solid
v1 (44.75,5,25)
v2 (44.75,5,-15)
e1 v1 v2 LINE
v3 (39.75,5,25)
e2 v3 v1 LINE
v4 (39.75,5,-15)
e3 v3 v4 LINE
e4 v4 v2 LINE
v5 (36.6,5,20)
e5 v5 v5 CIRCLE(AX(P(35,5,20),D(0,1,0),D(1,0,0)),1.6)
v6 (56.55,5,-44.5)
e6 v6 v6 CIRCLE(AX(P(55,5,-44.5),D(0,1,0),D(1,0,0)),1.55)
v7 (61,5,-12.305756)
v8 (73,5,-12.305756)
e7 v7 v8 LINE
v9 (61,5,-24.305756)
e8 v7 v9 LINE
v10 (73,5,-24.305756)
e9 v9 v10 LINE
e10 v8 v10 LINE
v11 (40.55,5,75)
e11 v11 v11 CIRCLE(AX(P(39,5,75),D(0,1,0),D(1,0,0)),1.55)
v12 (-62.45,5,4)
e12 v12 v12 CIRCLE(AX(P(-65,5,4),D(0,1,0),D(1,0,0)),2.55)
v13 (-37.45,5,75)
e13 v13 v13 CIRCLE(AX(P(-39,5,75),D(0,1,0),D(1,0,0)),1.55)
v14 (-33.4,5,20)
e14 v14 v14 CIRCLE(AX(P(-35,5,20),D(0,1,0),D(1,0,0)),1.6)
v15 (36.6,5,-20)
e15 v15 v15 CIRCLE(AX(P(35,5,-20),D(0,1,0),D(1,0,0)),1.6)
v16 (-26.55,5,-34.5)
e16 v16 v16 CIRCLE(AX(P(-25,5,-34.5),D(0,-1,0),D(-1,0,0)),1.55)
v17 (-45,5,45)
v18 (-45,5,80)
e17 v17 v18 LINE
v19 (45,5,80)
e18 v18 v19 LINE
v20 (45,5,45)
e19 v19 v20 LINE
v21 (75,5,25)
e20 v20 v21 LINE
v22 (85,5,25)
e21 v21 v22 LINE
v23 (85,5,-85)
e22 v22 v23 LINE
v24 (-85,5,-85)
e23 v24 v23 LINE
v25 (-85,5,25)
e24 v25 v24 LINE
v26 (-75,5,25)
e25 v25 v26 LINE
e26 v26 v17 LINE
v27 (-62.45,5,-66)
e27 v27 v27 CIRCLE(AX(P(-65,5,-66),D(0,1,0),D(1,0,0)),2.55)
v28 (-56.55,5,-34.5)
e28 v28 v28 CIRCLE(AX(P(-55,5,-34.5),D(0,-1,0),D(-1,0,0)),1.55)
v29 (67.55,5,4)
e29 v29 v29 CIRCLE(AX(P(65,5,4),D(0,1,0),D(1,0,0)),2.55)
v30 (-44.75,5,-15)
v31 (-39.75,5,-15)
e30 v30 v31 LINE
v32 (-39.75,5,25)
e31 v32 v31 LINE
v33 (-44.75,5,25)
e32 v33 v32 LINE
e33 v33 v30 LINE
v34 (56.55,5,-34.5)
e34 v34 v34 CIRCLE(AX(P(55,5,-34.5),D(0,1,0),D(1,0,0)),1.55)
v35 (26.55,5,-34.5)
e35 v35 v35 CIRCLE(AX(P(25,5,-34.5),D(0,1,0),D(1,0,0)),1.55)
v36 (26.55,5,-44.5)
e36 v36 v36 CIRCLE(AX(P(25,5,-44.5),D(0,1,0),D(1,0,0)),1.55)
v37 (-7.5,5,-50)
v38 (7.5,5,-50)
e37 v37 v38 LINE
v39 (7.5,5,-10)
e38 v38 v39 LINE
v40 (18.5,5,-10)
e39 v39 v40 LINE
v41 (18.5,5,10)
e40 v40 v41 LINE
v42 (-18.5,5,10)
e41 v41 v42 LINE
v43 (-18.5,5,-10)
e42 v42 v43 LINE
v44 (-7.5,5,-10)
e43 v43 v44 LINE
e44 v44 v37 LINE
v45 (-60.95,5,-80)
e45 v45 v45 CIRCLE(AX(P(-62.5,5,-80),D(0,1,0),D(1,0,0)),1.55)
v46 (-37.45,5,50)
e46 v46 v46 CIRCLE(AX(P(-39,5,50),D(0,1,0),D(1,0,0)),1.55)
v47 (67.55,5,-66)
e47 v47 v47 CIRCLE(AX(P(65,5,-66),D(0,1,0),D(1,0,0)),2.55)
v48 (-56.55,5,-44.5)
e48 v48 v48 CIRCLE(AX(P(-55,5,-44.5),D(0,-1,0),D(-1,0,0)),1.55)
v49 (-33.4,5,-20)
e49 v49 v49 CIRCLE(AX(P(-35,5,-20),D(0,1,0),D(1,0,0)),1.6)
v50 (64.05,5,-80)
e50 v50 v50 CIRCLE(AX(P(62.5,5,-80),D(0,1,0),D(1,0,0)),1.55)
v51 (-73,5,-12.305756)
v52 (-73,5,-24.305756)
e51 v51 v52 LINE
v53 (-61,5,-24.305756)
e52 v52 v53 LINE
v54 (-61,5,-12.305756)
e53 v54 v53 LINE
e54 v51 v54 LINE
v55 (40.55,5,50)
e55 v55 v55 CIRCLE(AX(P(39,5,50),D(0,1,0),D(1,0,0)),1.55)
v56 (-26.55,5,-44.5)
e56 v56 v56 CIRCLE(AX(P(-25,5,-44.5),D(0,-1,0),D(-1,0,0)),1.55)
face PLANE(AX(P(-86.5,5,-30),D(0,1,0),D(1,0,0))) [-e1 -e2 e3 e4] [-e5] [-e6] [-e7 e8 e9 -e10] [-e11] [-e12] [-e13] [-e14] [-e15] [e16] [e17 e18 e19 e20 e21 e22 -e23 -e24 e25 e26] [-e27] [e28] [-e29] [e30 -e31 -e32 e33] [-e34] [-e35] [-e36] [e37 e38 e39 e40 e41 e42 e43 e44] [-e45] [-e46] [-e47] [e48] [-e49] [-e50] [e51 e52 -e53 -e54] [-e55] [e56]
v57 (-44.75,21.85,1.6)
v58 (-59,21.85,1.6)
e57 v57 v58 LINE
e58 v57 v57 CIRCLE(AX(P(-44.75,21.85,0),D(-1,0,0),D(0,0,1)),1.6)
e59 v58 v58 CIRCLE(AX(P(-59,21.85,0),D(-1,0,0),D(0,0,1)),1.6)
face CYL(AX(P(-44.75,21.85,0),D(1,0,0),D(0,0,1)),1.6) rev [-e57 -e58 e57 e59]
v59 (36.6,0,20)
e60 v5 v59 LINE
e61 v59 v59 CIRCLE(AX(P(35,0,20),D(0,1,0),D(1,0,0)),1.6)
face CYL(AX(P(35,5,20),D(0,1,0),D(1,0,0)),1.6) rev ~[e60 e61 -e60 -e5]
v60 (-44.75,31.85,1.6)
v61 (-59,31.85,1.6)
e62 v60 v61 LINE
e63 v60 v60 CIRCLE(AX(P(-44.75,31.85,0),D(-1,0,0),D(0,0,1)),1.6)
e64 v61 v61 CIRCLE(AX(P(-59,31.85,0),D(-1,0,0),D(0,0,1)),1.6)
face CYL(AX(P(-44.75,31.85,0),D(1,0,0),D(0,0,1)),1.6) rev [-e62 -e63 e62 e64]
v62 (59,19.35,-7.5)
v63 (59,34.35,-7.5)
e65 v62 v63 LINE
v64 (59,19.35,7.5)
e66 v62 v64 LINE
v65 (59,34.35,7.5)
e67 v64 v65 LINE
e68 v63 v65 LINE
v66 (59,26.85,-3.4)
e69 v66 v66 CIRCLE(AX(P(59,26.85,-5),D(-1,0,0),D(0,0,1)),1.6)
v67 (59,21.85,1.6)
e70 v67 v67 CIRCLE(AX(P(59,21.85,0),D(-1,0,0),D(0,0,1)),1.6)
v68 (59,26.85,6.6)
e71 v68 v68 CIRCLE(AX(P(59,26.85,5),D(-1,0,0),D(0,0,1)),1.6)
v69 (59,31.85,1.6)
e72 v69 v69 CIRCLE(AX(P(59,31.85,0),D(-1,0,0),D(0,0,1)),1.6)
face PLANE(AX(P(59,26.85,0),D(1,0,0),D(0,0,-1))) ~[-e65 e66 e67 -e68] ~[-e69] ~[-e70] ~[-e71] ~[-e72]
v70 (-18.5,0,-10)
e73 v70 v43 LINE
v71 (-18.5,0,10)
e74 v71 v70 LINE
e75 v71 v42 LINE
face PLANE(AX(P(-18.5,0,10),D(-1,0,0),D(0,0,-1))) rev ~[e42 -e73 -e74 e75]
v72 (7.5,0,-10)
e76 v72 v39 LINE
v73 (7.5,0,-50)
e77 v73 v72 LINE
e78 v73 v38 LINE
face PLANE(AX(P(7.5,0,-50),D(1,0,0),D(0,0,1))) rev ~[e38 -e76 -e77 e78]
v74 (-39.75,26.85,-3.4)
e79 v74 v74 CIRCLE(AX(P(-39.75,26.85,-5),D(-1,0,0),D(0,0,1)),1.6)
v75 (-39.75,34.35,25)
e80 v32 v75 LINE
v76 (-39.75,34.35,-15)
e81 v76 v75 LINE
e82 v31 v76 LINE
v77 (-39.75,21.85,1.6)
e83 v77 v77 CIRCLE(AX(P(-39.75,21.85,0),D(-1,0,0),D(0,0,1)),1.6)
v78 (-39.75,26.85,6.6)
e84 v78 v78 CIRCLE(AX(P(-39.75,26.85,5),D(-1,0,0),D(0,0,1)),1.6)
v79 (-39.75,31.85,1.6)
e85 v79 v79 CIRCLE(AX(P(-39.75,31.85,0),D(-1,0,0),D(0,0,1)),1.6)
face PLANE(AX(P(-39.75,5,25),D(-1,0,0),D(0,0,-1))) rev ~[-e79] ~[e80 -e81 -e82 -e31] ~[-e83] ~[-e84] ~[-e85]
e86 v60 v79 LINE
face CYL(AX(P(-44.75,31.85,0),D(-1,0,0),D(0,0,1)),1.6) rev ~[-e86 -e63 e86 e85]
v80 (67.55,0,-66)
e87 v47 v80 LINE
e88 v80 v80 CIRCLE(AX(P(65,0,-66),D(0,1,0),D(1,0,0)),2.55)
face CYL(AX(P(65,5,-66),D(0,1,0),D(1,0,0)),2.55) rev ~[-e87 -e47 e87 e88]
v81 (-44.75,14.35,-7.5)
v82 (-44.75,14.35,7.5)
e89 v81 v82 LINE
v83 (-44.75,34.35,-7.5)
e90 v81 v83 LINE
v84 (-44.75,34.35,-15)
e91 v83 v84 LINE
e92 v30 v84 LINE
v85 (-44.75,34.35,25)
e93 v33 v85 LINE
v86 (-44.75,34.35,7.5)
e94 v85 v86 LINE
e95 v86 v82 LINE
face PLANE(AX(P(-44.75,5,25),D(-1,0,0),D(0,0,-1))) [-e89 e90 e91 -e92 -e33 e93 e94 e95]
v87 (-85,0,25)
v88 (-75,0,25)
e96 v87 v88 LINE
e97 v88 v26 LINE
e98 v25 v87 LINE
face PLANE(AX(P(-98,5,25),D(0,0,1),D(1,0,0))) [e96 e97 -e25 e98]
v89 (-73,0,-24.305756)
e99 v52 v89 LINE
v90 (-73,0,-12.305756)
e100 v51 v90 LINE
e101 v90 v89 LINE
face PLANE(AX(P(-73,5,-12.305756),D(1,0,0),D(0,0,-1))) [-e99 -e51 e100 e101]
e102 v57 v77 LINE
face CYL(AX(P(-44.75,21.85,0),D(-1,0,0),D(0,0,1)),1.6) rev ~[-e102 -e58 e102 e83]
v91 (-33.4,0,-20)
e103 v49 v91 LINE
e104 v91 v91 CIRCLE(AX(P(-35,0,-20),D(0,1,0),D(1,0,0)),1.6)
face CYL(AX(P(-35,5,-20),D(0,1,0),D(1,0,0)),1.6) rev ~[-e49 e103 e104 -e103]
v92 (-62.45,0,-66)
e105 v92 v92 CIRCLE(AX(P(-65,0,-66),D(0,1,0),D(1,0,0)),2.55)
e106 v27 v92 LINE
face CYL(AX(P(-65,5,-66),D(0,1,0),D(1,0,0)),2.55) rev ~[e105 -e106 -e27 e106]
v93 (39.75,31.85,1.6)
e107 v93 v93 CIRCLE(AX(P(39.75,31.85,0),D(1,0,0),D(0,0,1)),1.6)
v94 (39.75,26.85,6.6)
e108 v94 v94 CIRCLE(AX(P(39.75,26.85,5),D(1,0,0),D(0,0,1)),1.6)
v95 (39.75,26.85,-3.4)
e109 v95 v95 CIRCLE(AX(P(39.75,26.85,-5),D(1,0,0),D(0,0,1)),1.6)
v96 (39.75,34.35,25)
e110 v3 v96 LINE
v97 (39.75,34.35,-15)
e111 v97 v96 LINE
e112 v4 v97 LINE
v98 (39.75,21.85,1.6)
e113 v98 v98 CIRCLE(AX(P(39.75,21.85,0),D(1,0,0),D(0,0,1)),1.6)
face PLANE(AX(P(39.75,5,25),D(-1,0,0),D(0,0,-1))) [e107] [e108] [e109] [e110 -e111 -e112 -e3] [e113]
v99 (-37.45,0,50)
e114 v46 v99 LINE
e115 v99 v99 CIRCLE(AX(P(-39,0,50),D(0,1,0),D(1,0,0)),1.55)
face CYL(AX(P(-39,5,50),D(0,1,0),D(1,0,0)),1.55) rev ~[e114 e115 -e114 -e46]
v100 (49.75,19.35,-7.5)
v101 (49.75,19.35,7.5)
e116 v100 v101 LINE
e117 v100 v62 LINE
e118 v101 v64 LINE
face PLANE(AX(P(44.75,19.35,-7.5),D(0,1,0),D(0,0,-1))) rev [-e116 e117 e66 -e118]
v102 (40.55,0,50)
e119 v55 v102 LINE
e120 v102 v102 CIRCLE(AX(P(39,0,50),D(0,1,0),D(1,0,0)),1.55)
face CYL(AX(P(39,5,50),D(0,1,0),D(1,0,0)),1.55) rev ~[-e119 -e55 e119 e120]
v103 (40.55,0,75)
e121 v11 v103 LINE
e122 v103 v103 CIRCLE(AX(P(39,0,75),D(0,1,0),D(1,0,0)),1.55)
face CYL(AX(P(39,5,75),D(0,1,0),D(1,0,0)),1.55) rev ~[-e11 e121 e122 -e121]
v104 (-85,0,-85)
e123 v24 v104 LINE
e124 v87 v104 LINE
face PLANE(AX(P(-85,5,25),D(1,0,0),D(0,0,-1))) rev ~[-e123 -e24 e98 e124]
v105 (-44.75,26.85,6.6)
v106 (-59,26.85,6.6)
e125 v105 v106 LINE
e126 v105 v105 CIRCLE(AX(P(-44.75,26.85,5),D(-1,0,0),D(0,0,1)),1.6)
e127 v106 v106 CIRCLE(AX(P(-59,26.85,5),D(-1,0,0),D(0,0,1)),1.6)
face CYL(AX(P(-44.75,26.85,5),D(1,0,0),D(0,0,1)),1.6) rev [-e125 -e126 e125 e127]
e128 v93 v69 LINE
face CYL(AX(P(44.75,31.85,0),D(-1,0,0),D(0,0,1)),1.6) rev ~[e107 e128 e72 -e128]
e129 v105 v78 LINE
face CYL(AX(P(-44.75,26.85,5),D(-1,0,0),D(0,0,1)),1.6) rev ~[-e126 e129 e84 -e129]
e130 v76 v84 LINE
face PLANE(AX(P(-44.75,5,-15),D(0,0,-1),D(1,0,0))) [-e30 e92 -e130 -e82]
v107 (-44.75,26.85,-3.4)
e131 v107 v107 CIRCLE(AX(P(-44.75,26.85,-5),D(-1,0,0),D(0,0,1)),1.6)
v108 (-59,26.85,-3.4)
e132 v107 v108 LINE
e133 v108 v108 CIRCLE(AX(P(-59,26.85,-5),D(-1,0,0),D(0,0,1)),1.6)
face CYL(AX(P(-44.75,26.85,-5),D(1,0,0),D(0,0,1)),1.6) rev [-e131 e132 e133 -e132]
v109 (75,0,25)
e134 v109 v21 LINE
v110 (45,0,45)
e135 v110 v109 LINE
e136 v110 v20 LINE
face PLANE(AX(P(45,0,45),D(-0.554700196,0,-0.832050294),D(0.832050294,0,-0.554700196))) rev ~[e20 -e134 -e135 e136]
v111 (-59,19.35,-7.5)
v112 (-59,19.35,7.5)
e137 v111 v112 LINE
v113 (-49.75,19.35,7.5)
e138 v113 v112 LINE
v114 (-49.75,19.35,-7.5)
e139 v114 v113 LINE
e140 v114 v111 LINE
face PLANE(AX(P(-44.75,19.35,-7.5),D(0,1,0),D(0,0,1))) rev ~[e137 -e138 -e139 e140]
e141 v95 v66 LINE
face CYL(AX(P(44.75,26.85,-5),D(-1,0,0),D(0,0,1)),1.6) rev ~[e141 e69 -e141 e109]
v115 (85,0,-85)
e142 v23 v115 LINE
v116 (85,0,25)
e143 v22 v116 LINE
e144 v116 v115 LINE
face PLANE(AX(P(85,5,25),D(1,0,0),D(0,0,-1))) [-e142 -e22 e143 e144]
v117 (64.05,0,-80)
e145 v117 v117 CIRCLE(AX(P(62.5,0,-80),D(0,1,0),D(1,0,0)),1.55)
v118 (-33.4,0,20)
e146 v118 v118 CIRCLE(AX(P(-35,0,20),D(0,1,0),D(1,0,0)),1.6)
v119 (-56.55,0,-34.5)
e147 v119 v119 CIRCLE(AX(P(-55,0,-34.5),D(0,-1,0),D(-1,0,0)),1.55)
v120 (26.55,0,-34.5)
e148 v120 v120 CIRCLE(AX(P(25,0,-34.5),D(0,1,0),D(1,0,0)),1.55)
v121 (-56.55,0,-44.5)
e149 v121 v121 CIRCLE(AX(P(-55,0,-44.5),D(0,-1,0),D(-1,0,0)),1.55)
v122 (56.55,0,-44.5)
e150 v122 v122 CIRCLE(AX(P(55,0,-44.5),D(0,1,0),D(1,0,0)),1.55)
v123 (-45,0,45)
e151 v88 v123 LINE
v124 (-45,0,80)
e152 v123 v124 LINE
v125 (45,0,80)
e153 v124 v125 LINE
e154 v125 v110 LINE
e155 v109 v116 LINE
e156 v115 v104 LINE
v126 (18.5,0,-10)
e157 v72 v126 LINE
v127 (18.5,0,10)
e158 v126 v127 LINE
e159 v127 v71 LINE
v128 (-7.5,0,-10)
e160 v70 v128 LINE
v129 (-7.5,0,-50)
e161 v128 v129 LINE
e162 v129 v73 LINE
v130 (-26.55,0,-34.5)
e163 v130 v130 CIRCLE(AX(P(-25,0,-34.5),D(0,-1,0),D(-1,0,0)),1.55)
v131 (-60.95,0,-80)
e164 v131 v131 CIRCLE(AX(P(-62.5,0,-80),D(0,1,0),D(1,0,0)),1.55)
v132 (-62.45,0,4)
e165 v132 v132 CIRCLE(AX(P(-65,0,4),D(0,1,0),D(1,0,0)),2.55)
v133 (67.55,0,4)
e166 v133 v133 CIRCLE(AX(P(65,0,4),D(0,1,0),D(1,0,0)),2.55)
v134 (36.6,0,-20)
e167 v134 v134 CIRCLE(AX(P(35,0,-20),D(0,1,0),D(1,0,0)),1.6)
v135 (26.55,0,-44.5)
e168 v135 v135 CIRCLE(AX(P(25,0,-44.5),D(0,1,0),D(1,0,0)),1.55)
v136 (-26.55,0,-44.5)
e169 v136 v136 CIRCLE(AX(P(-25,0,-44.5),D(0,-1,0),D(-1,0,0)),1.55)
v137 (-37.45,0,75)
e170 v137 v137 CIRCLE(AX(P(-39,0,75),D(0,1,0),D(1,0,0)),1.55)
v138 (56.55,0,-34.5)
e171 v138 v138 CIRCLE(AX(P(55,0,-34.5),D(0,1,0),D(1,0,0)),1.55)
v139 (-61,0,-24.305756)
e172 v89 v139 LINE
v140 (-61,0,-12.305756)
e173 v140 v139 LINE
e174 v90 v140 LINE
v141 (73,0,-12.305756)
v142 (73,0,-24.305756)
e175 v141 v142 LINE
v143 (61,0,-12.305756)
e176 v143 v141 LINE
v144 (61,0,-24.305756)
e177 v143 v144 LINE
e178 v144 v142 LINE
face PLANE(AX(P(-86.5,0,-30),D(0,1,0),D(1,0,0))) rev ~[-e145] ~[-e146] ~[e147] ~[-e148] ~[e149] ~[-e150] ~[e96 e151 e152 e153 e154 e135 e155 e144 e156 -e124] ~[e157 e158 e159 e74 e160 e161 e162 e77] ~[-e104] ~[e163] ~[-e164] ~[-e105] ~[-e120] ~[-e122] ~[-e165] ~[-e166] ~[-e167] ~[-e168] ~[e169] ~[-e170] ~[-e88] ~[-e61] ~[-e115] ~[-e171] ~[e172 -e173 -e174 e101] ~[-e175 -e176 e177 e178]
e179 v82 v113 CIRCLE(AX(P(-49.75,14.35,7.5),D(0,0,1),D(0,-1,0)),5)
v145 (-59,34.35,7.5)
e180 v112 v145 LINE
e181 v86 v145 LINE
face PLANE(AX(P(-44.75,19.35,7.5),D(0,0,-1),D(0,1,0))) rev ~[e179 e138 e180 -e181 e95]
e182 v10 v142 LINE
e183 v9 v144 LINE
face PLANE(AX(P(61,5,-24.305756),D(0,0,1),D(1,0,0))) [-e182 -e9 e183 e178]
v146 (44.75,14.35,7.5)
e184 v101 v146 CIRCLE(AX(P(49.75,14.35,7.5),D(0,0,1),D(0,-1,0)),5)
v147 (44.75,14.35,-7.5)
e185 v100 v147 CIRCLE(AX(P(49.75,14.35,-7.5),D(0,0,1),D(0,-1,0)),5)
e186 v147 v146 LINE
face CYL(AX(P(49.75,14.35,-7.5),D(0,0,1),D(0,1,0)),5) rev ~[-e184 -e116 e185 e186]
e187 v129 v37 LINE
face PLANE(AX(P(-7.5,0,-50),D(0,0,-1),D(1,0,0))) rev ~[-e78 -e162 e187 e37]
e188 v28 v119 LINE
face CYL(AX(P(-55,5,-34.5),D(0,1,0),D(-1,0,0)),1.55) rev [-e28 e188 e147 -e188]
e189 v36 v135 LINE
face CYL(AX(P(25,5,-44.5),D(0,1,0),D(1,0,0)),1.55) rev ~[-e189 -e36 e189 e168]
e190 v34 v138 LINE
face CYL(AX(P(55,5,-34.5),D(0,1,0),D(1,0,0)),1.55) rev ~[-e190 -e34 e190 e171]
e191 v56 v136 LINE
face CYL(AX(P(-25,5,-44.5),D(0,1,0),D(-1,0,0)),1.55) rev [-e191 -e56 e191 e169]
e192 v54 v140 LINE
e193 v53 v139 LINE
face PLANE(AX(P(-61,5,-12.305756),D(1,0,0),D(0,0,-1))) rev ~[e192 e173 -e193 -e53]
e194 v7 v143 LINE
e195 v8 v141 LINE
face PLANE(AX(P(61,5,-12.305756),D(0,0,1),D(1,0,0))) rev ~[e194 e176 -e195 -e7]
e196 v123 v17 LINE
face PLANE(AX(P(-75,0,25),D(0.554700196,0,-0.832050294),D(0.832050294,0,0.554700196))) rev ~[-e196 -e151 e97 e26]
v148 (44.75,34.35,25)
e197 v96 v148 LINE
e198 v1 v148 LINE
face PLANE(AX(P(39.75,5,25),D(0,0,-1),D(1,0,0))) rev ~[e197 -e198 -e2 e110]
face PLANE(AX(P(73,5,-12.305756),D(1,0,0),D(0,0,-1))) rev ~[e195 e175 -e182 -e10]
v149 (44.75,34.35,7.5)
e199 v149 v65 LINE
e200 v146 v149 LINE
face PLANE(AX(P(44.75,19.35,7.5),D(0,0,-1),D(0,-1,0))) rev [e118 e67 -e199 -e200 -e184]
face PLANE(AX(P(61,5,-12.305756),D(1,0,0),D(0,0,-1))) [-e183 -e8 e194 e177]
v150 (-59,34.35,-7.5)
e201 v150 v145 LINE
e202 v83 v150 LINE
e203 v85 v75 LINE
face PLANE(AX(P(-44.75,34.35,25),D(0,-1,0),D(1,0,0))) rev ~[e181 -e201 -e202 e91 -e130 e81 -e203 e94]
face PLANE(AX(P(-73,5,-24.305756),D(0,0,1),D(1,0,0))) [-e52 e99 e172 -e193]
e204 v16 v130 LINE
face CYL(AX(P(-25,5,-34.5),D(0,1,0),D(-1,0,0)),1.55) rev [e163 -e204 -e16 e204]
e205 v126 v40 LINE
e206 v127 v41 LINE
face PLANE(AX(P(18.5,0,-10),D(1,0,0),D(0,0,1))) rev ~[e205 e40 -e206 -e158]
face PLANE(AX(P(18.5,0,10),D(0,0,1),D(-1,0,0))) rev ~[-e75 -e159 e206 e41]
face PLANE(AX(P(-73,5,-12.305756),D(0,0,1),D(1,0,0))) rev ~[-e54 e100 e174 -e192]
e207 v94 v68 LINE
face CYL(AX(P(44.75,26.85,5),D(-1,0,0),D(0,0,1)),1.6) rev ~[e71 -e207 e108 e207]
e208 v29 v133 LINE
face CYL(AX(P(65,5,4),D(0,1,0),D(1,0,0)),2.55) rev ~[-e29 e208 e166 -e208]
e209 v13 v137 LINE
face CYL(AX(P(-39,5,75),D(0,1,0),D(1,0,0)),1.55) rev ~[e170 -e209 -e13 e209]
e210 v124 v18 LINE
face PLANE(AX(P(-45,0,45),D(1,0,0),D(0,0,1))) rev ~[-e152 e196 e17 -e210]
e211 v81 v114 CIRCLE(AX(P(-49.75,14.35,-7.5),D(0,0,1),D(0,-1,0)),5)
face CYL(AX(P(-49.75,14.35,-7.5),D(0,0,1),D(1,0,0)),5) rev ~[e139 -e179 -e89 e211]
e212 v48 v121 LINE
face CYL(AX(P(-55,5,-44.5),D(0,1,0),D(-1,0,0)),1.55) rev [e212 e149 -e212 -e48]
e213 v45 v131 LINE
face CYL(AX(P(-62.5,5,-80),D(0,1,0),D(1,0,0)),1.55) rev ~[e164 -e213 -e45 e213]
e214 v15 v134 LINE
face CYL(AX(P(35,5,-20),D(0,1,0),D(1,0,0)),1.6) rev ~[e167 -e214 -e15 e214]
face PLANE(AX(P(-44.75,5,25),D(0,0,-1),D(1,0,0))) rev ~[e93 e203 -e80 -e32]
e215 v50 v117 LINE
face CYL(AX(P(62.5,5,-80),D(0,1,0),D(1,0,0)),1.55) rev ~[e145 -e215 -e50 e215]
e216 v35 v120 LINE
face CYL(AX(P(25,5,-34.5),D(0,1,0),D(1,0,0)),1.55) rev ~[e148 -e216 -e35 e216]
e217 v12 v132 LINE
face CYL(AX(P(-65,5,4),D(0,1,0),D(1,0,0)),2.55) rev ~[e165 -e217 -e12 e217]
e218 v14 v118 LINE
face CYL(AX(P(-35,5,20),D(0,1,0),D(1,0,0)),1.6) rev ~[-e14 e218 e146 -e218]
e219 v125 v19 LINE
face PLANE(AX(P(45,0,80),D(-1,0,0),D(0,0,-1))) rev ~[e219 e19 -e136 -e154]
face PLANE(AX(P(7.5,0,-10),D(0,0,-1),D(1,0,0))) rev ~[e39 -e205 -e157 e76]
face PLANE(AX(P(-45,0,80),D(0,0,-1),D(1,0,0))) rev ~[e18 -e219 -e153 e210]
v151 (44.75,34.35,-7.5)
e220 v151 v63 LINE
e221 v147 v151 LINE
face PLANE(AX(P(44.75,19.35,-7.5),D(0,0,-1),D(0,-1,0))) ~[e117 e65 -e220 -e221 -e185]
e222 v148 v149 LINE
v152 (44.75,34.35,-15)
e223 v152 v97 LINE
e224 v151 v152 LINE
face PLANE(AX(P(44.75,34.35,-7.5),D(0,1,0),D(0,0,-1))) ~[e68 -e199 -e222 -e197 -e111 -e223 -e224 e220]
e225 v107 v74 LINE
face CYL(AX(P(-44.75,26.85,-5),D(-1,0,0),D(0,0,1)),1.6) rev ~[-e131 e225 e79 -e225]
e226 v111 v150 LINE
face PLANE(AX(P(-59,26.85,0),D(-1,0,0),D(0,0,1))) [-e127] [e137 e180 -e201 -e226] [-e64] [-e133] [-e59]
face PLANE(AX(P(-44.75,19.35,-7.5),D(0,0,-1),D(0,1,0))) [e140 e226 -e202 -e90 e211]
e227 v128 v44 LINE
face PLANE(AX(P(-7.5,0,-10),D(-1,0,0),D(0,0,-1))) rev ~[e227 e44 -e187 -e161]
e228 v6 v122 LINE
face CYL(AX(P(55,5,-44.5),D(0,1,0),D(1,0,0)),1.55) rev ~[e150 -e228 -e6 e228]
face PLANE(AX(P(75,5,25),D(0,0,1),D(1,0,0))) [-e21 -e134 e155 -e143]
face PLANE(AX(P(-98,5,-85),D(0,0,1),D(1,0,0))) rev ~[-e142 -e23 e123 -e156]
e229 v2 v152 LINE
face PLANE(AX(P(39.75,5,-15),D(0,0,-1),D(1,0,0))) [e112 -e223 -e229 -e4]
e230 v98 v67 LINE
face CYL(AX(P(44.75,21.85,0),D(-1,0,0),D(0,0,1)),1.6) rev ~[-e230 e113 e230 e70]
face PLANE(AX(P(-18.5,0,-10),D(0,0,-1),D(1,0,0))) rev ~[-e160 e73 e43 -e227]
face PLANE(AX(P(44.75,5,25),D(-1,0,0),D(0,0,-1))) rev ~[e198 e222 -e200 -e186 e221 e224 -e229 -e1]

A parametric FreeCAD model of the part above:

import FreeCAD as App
import Part
import Sketcher
from FreeCAD import Vector


def edges_at(feature, points):
    """Names of the edges that pass closest to the given points."""
    edges = feature.Shape.Edges
    near = lambda p: min(range(len(edges)), key=lambda i: edges[i].distToShape(Part.Vertex(*p))[0])
    return sorted({f"Edge{near(p) + 1}" for p in points})

doc = App.newDocument("Part")
params = doc.addObject("Spreadsheet::Sheet", "Params")
for row, (alias, value) in enumerate([
    ("sketch1_width", "150 mm"),
    ("sketch1_width2", "90 mm"),
    ("sketch1_width3", "37 mm"),
    ("sketch1_width4", "11 mm"),
    ("sketch1_height", "110 mm"),
    ("pad1_length", "5 mm"),
    ("sketch2_diameter", "3.2 mm"),
    ("sketch3_diameter", "5.1 mm"),
    ("pocket2_length", "10 mm"),
    ("sketch4_diameter", "3.1 mm"),
    ("sketch5_diameter", "3.1 mm"),
    ("sketch6_width", "23 mm"),
    ("sketch6_height", "110 mm"),
    ("pad2_length", "5 mm"),
    ("sketch7_width", "5 mm"),
    ("sketch7_height", "40 mm"),
    ("pad3_length", "33 mm"),
    ("sketch8_width", "12 mm"),
    ("pocket5_length", "50 mm"),
    ("sketch9_diameter", "3.2 mm"),
    ("pocket6_length", "50 mm"),
    ("sketch10_diameter", "3.2 mm"),
    ("sketch10_width", "15 mm"),
    ("pad4_length", "14.25 mm"),
    ("sketch11_width", "89.5 mm"),
    ("sketch11_height", "3.65 mm"),
    ("sketch12_width", "13 mm"),
    ("sketch12_height", "110 mm"),
    ("fillet_radius", "5 mm"),
    ("sketch13_diameter", "3.1 mm"),
    ("pocket9_length", "5 mm"),
], start=1):
    params.set(f"A{row}", alias)
    params.set(f"B{row}", "=" + value)
    params.setAlias(f"B{row}", alias)

body = doc.addObject("PartDesign::Body", "Body")

sketch1 = body.newObject("Sketcher::SketchObject", "Sketch")
sketch1.AttachmentSupport = (doc.getObject("XZ_Plane"), [""])
sketch1.MapMode = "FlatFace"
sketch1.addGeometry([
    Part.LineSegment(Vector(75, -85, 0), Vector(-75, -85, 0)),
    Part.LineSegment(Vector(-75, -85, 0), Vector(-75, 25, 0)),
    Part.LineSegment(Vector(-75, 25, 0), Vector(-45, 45, 0)),
    Part.LineSegment(Vector(-45, 45, 0), Vector(-45, 80, 0)),
    Part.LineSegment(Vector(-45, 80, 0), Vector(45, 80, 0)),
    Part.LineSegment(Vector(45, 80, 0), Vector(45, 45, 0)),
    Part.LineSegment(Vector(45, 45, 0), Vector(75, 25, 0)),
    Part.LineSegment(Vector(75, 25, 0), Vector(75, -85, 0)),
    Part.LineSegment(Vector(18.5, 10, 0), Vector(-18.5, 10, 0)),
    Part.LineSegment(Vector(-18.5, 10, 0), Vector(-18.5, -10, 0)),
    Part.LineSegment(Vector(-18.5, -10, 0), Vector(-7.5, -10, 0)),
    Part.LineSegment(Vector(-7.5, -10, 0), Vector(-7.5, -50, 0)),
    Part.LineSegment(Vector(-7.5, -50, 0), Vector(7.5, -50, 0)),
    Part.LineSegment(Vector(7.5, -50, 0), Vector(7.5, -10, 0)),
    Part.LineSegment(Vector(7.5, -10, 0), Vector(18.5, -10, 0)),
    Part.LineSegment(Vector(18.5, -10, 0), Vector(18.5, 10, 0)),
], False)
sketch1.addConstraint([
    Sketcher.Constraint("Coincident", 0, 2, 1, 1),
    Sketcher.Constraint("Coincident", 1, 2, 2, 1),
    Sketcher.Constraint("Coincident", 2, 2, 3, 1),
    Sketcher.Constraint("Coincident", 3, 2, 4, 1),
    Sketcher.Constraint("Coincident", 4, 2, 5, 1),
    Sketcher.Constraint("Coincident", 5, 2, 6, 1),
    Sketcher.Constraint("Coincident", 6, 2, 7, 1),
    Sketcher.Constraint("Coincident", 7, 2, 0, 1),
    Sketcher.Constraint("Coincident", 8, 2, 9, 1),
    Sketcher.Constraint("Coincident", 9, 2, 10, 1),
    Sketcher.Constraint("Coincident", 10, 2, 11, 1),
    Sketcher.Constraint("Coincident", 11, 2, 12, 1),
    Sketcher.Constraint("Coincident", 12, 2, 13, 1),
    Sketcher.Constraint("Coincident", 13, 2, 14, 1),
    Sketcher.Constraint("Coincident", 14, 2, 15, 1),
    Sketcher.Constraint("Coincident", 15, 2, 8, 1),
    Sketcher.Constraint("Horizontal", 0),
    Sketcher.Constraint("Vertical", 1),
    Sketcher.Constraint("Vertical", 3),
    Sketcher.Constraint("Horizontal", 4),
    Sketcher.Constraint("Vertical", 5),
    Sketcher.Constraint("Vertical", 7),
    Sketcher.Constraint("Horizontal", 8),
    Sketcher.Constraint("Vertical", 9),
    Sketcher.Constraint("Horizontal", 10),
    Sketcher.Constraint("Vertical", 11),
    Sketcher.Constraint("Horizontal", 12),
    Sketcher.Constraint("Vertical", 13),
    Sketcher.Constraint("Horizontal", 14),
    Sketcher.Constraint("Vertical", 15),
    Sketcher.Constraint("Symmetric", 8, 2, 14, 2, -1, 1),
    Sketcher.Constraint("Symmetric", 2, 2, 5, 2, -2),
    Sketcher.Constraint("Symmetric", 1, 2, 6, 2, -2),
    Sketcher.Constraint("Symmetric", 10, 2, 13, 2, -2),
    Sketcher.Constraint("DistanceX", 0, 2, 0, 1, 150.0),
    Sketcher.Constraint("DistanceX", 4, 1, 4, 2, 90.0),
    Sketcher.Constraint("DistanceX", 8, 2, 8, 1, 37.0),
    Sketcher.Constraint("DistanceX", 10, 1, 10, 2, 11.0),
    Sketcher.Constraint("DistanceY", 1, 1, 1, 2, 110.0),
    Sketcher.Constraint("DistanceY", 3, 1, 3, 2, 35.0),
    Sketcher.Constraint("DistanceY", 9, 2, 9, 1, 20.0),
    Sketcher.Constraint("DistanceY", 11, 2, 11, 1, 40.0),
    Sketcher.Constraint("DistanceY", 0, 2, -1, 1, 85.0),
    Sketcher.Constraint("DistanceY", -1, 1, 2, 2, 45.0),
])
sketch1.setExpression("Constraints[34]", "Params.sketch1_width")
sketch1.setExpression("Constraints[35]", "Params.sketch1_width2")
sketch1.setExpression("Constraints[36]", "Params.sketch1_width3")
sketch1.setExpression("Constraints[37]", "Params.sketch1_width4")
sketch1.setExpression("Constraints[38]", "Params.sketch1_height")
pad1 = body.newObject("PartDesign::Pad", "Pad")
pad1.Profile = sketch1
pad1.setExpression("Length", "Params.pad1_length")
pad1.Reversed = True

sketch2 = body.newObject("Sketcher::SketchObject", "Sketch001")
sketch2.AttachmentSupport = (doc.getObject("XZ_Plane"), [""])
sketch2.MapMode = "FlatFace"
sketch2.AttachmentOffset = App.Placement(Vector(0, 0, -5), App.Rotation())
sketch2.addGeometry([
    Part.Circle(Vector(-35, -20, 0), Vector(0, 0, 1), 1.6),
    Part.Circle(Vector(-35, 20, 0), Vector(0, 0, 1), 1.6),
    Part.Circle(Vector(35, 20, 0), Vector(0, 0, 1), 1.6),
    Part.Circle(Vector(35, -20, 0), Vector(0, 0, 1), 1.6),
], False)
sketch2.addConstraint([
    Sketcher.Constraint("Equal", 0, 1),
    Sketcher.Constraint("Equal", 1, 2),
    Sketcher.Constraint("Equal", 2, 3),
    Sketcher.Constraint("Symmetric", 0, 3, 2, 3, -1, 1),
    Sketcher.Constraint("Symmetric", 1, 3, 3, 3, -1, 1),
    Sketcher.Constraint("Symmetric", 1, 3, 2, 3, -2),
    Sketcher.Constraint("Diameter", 0, 3.2),
    Sketcher.Constraint("DistanceX", 0, 3, -1, 1, 35.0),
    Sketcher.Constraint("DistanceY", 0, 3, -1, 1, 20.0),
])
sketch2.setExpression("Constraints[6]", "Params.sketch2_diameter")
pocket1 = body.newObject("PartDesign::Pocket", "Pocket")
pocket1.Profile = sketch2
pocket1.Type = "ThroughAll"
pocket1.Midplane = True

sketch3 = body.newObject("Sketcher::SketchObject", "Sketch002")
sketch3.AttachmentSupport = (doc.getObject("XZ_Plane"), [""])
sketch3.MapMode = "FlatFace"
sketch3.AttachmentOffset = App.Placement(Vector(0, 0, -5), App.Rotation())
sketch3.addGeometry([
    Part.Circle(Vector(-65, -66, 0), Vector(0, 0, 1), 2.55),
    Part.Circle(Vector(65, 4, 0), Vector(0, 0, 1), 2.55),
    Part.Circle(Vector(-65, 4, 0), Vector(0, 0, 1), 2.55),
    Part.Circle(Vector(65, -66, 0), Vector(0, 0, 1), 2.55),
], False)
sketch3.addConstraint([
    Sketcher.Constraint("Equal", 0, 1),
    Sketcher.Constraint("Equal", 1, 2),
    Sketcher.Constraint("Equal", 2, 3),
    Sketcher.Constraint("Symmetric", 1, 3, 2, 3, -2),
    Sketcher.Constraint("Symmetric", 0, 3, 3, 3, -2),
    Sketcher.Constraint("Vertical", 0, 3, 2, 3),
    Sketcher.Constraint("Diameter", 0, 5.1),
    Sketcher.Constraint("DistanceX", 0, 3, -1, 1, 65.0),
    Sketcher.Constraint("DistanceY", 0, 3, -1, 1, 66.0),
    Sketcher.Constraint("DistanceY", -1, 1, 1, 3, 4.0),
])
sketch3.setExpression("Constraints[6]", "Params.sketch3_diameter")
pocket2 = body.newObject("PartDesign::Pocket", "Pocket001")
pocket2.Profile = sketch3
pocket2.setExpression("Length", "Params.pocket2_length")
pocket2.Reversed = True

sketch4 = body.newObject("Sketcher::SketchObject", "Sketch003")
sketch4.AttachmentSupport = (doc.getObject("XZ_Plane"), [""])
sketch4.MapMode = "FlatFace"
sketch4.AttachmentOffset = App.Placement(Vector(0, 0, -5), App.Rotation())
sketch4.addGeometry([
    Part.Circle(Vector(-39, 75, 0), Vector(0, 0, 1), 1.55),
    Part.Circle(Vector(39, 75, 0), Vector(0, 0, 1), 1.55),
    Part.Circle(Vector(-39, 50, 0), Vector(0, 0, 1), 1.55),
    Part.Circle(Vector(39, 50, 0), Vector(0, 0, 1), 1.55),
], False)
sketch4.addConstraint([
    Sketcher.Constraint("Equal", 0, 1),
    Sketcher.Constraint("Equal", 1, 2),
    Sketcher.Constraint("Equal", 2, 3),
    Sketcher.Constraint("Symmetric", 0, 3, 1, 3, -2),
    Sketcher.Constraint("Symmetric", 2, 3, 3, 3, -2),
    Sketcher.Constraint("Vertical", 0, 3, 2, 3),
    Sketcher.Constraint("Diameter", 0, 3.1),
    Sketcher.Constraint("DistanceX", 0, 3, -1, 1, 39.0),
    Sketcher.Constraint("DistanceY", -1, 1, 0, 3, 75.0),
    Sketcher.Constraint("DistanceY", -1, 1, 2, 3, 50.0),
])
sketch4.setExpression("Constraints[6]", "Params.sketch4_diameter")
pocket3 = body.newObject("PartDesign::Pocket", "Pocket002")
pocket3.Profile = sketch4
pocket3.Type = "ThroughAll"
pocket3.Reversed = True

sketch5 = body.newObject("Sketcher::SketchObject", "Sketch004")
sketch5.AttachmentSupport = (doc.getObject("XZ_Plane"), [""])
sketch5.MapMode = "FlatFace"
sketch5.AttachmentOffset = App.Placement(Vector(0, 0, -5), App.Rotation())
sketch5.addGeometry([
    Part.Circle(Vector(62.5, -80, 0), Vector(0, 0, 1), 1.55),
    Part.Circle(Vector(-62.5, -80, 0), Vector(0, 0, 1), 1.55),
], False)
sketch5.addConstraint([
    Sketcher.Constraint("Equal", 0, 1),
    Sketcher.Constraint("Symmetric", 0, 3, 1, 3, -2),
    Sketcher.Constraint("Diameter", 0, 3.1),
    Sketcher.Constraint("DistanceY", 0, 3, -1, 1, 80.0),
    Sketcher.Constraint("DistanceX", 1, 3, 0, 3, 125.0),
])
sketch5.setExpression("Constraints[2]", "Params.sketch5_diameter")
pocket4 = body.newObject("PartDesign::Pocket", "Pocket003")
pocket4.Profile = sketch5
pocket4.Type = "ThroughAll"
pocket4.Reversed = True

sketch6 = body.newObject("Sketcher::SketchObject", "Sketch005")
sketch6.AttachmentSupport = (doc.getObject("XZ_Plane"), [""])
sketch6.MapMode = "FlatFace"
sketch6.AttachmentOffset = App.Placement(Vector(0, 0, -5), App.Rotation())
sketch6.addGeometry([
    Part.LineSegment(Vector(-98, -85, 0), Vector(-98, 25, 0)),
    Part.LineSegment(Vector(-98, 25, 0), Vector(-75, 25, 0)),
    Part.LineSegment(Vector(-75, 25, 0), Vector(-75, -85, 0)),
    Part.LineSegment(Vector(-75, -85, 0), Vector(-98, -85, 0)),
    Part.LineSegment(Vector(75, -85, 0), Vector(75, 25, 0)),
    Part.LineSegment(Vector(75, 25, 0), Vector(98, 25, 0)),
    Part.LineSegment(Vector(98, 25, 0), Vector(98, -85, 0)),
    Part.LineSegment(Vector(98, -85, 0), Vector(75, -85, 0)),
], False)
sketch6.addConstraint([
    Sketcher.Constraint("Coincident", 0, 2, 1, 1),
    Sketcher.Constraint("Coincident", 1, 2, 2, 1),
    Sketcher.Constraint("Coincident", 2, 2, 3, 1),
    Sketcher.Constraint("Coincident", 3, 2, 0, 1),
    Sketcher.Constraint("Coincident", 4, 2, 5, 1),
    Sketcher.Constraint("Coincident", 5, 2, 6, 1),
    Sketcher.Constraint("Coincident", 6, 2, 7, 1),
    Sketcher.Constraint("Coincident", 7, 2, 4, 1),
    Sketcher.Constraint("Vertical", 0),
    Sketcher.Constraint("Horizontal", 1),
    Sketcher.Constraint("Vertical", 2),
    Sketcher.Constraint("Horizontal", 3),
    Sketcher.Constraint("Vertical", 4),
    Sketcher.Constraint("Horizontal", 5),
    Sketcher.Constraint("Vertical", 6),
    Sketcher.Constraint("Horizontal", 7),
    Sketcher.Constraint("Symmetric", 1, 2, 4, 2, -2),
    Sketcher.Constraint("Symmetric", 3, 2, 6, 2, -2),
    Sketcher.Constraint("DistanceX", 1, 1, 1, 2, 23.0),
    Sketcher.Constraint("DistanceY", 0, 1, 0, 2, 110.0),
    Sketcher.Constraint("DistanceX", 0, 2, -1, 1, 98.0),
    Sketcher.Constraint("DistanceY", -1, 1, 0, 2, 25.0),
])
sketch6.setExpression("Constraints[18]", "Params.sketch6_width")
sketch6.setExpression("Constraints[19]", "Params.sketch6_height")
pad2 = body.newObject("PartDesign::Pad", "Pad001")
pad2.Profile = sketch6
pad2.setExpression("Length", "Params.pad2_length")

sketch7 = body.newObject("Sketcher::SketchObject", "Sketch006")
sketch7.AttachmentSupport = (doc.getObject("XZ_Plane"), [""])
sketch7.MapMode = "FlatFace"
sketch7.AttachmentOffset = App.Placement(Vector(0, 0, -5), App.Rotation())
sketch7.addGeometry([
    Part.LineSegment(Vector(-44.75, -15, 0), Vector(-44.75, 25, 0)),
    Part.LineSegment(Vector(-44.75, 25, 0), Vector(-39.75, 25, 0)),
    Part.LineSegment(Vector(-39.75, 25, 0), Vector(-39.75, -15, 0)),
    Part.LineSegment(Vector(-39.75, -15, 0), Vector(-44.75, -15, 0)),
    Part.LineSegment(Vector(39.75, -15, 0), Vector(39.75, 25, 0)),
    Part.LineSegment(Vector(39.75, 25, 0), Vector(44.75, 25, 0)),
    Part.LineSegment(Vector(44.75, 25, 0), Vector(44.75, -15, 0)),
    Part.LineSegment(Vector(44.75, -15, 0), Vector(39.75, -15, 0)),
], False)
sketch7.addConstraint([
    Sketcher.Constraint("Coincident", 0, 2, 1, 1),
    Sketcher.Constraint("Coincident", 1, 2, 2, 1),
    Sketcher.Constraint("Coincident", 2, 2, 3, 1),
    Sketcher.Constraint("Coincident", 3, 2, 0, 1),
    Sketcher.Constraint("Coincident", 4, 2, 5, 1),
    Sketcher.Constraint("Coincident", 5, 2, 6, 1),
    Sketcher.Constraint("Coincident", 6, 2, 7, 1),
    Sketcher.Constraint("Coincident", 7, 2, 4, 1),
    Sketcher.Constraint("Vertical", 0),
    Sketcher.Constraint("Horizontal", 1),
    Sketcher.Constraint("Vertical", 2),
    Sketcher.Constraint("Horizontal", 3),
    Sketcher.Constraint("Vertical", 4),
    Sketcher.Constraint("Horizontal", 5),
    Sketcher.Constraint("Vertical", 6),
    Sketcher.Constraint("Horizontal", 7),
    Sketcher.Constraint("Symmetric", 1, 2, 4, 2, -2),
    Sketcher.Constraint("Symmetric", 3, 2, 6, 2, -2),
    Sketcher.Constraint("DistanceX", 1, 1, 1, 2, 5.0),
    Sketcher.Constraint("DistanceY", 0, 1, 0, 2, 40.0),
    Sketcher.Constraint("DistanceY", -1, 1, 0, 2, 25.0),
    Sketcher.Constraint("DistanceX", 1, 2, 4, 2, 79.5),
])
sketch7.setExpression("Constraints[18]", "Params.sketch7_width")
sketch7.setExpression("Constraints[19]", "Params.sketch7_height")
pad3 = body.newObject("PartDesign::Pad", "Pad002")
pad3.Profile = sketch7
pad3.setExpression("Length", "Params.pad3_length")
pad3.Reversed = True

sketch8 = body.newObject("Sketcher::SketchObject", "Sketch007")
sketch8.AttachmentSupport = (doc.getObject("XZ_Plane"), [""])
sketch8.MapMode = "FlatFace"
sketch8.AttachmentOffset = App.Placement(Vector(0, 0, -5), App.Rotation())
sketch8.addGeometry([
    Part.LineSegment(Vector(-73, -24.305756, 0), Vector(-73, -12.305756, 0)),
    Part.LineSegment(Vector(-73, -12.305756, 0), Vector(-61, -12.305756, 0)),
    Part.LineSegment(Vector(-61, -12.305756, 0), Vector(-61, -24.305756, 0)),
    Part.LineSegment(Vector(-61, -24.305756, 0), Vector(-73, -24.305756, 0)),
    Part.LineSegment(Vector(61, -24.305756, 0), Vector(61, -12.305756, 0)),
    Part.LineSegment(Vector(61, -12.305756, 0), Vector(73, -12.305756, 0)),
    Part.LineSegment(Vector(73, -12.305756, 0), Vector(73, -24.305756, 0)),
    Part.LineSegment(Vector(73, -24.305756, 0), Vector(61, -24.305756, 0)),
], False)
sketch8.addConstraint([
    Sketcher.Constraint("Coincident", 0, 2, 1, 1),
    Sketcher.Constraint("Coincident", 1, 2, 2, 1),
    Sketcher.Constraint("Coincident", 2, 2, 3, 1),
    Sketcher.Constraint("Coincident", 3, 2, 0, 1),
    Sketcher.Constraint("Coincident", 4, 2, 5, 1),
    Sketcher.Constraint("Coincident", 5, 2, 6, 1),
    Sketcher.Constraint("Coincident", 6, 2, 7, 1),
    Sketcher.Constraint("Coincident", 7, 2, 4, 1),
    Sketcher.Constraint("Vertical", 0),
    Sketcher.Constraint("Horizontal", 1),
    Sketcher.Constraint("Vertical", 2),
    Sketcher.Constraint("Horizontal", 3),
    Sketcher.Constraint("Vertical", 4),
    Sketcher.Constraint("Horizontal", 5),
    Sketcher.Constraint("Vertical", 6),
    Sketcher.Constraint("Horizontal", 7),
    Sketcher.Constraint("Symmetric", 1, 2, 4, 2, -2),
    Sketcher.Constraint("Symmetric", 3, 2, 6, 2, -2),
    Sketcher.Constraint("Equal", 7, 0),
    Sketcher.Constraint("DistanceX", 1, 1, 1, 2, 12.0),
    Sketcher.Constraint("DistanceX", 0, 2, -1, 1, 73.0),
    Sketcher.Constraint("DistanceY", 0, 2, -1, 1, 12.305756),
])
sketch8.setExpression("Constraints[19]", "Params.sketch8_width")
pocket5 = body.newObject("PartDesign::Pocket", "Pocket004")
pocket5.Profile = sketch8
pocket5.setExpression("Length", "Params.pocket5_length")
pocket5.Reversed = True

sketch9 = body.newObject("Sketcher::SketchObject", "Sketch008")
sketch9.AttachmentSupport = (doc.getObject("YZ_Plane"), [""])
sketch9.MapMode = "FlatFace"
sketch9.AttachmentOffset = App.Placement(Vector(0, 0, -44.75), App.Rotation())
sketch9.addGeometry([
    Part.Circle(Vector(31.85, 0, 0), Vector(0, 0, 1), 1.6),
    Part.Circle(Vector(26.85, 5, 0), Vector(0, 0, 1), 1.6),
    Part.Circle(Vector(21.85, 0, 0), Vector(0, 0, 1), 1.6),
    Part.Circle(Vector(26.85, -5, 0), Vector(0, 0, 1), 1.6),
], False)
sketch9.addConstraint([
    Sketcher.Constraint("Equal", 0, 1),
    Sketcher.Constraint("Equal", 1, 2),
    Sketcher.Constraint("Equal", 2, 3),
    Sketcher.Constraint("Symmetric", 1, 3, 3, 3, -1),
    Sketcher.Constraint("PointOnObject", 0, 3, -1),
    Sketcher.Constraint("PointOnObject", 2, 3, -1),
    Sketcher.Constraint("Diameter", 0, 3.2),
    Sketcher.Constraint("DistanceY", -1, 1, 1, 3, 5.0),
    Sketcher.Constraint("DistanceX", 1, 3, 0, 3, 5.0),
    Sketcher.Constraint("DistanceX", 2, 3, 1, 3, 5.0),
    Sketcher.Constraint("DistanceX", -1, 1, 0, 3, 31.85),
])
sketch9.setExpression("Constraints[6]", "Params.sketch9_diameter")
pocket6 = body.newObject("PartDesign::Pocket", "Pocket005")
pocket6.Profile = sketch9
pocket6.setExpression("Length", "Params.pocket6_length")
pocket6.Reversed = True

sketch10 = body.newObject("Sketcher::SketchObject", "Sketch009")
sketch10.AttachmentSupport = (doc.getObject("YZ_Plane"), [""])
sketch10.MapMode = "FlatFace"
sketch10.AttachmentOffset = App.Placement(Vector(0, 0, -44.75), App.Rotation())
sketch10.addGeometry([
    Part.LineSegment(Vector(34.35, -7.5, 0), Vector(19.35, -7.5, 0)),
    Part.LineSegment(Vector(19.35, -7.5, 0), Vector(19.35, 7.5, 0)),
    Part.LineSegment(Vector(19.35, 7.5, 0), Vector(34.35, 7.5, 0)),
    Part.LineSegment(Vector(34.35, 7.5, 0), Vector(34.35, -7.5, 0)),
    Part.Circle(Vector(21.85, 0, 0), Vector(0, 0, 1), 1.6),
    Part.Circle(Vector(26.85, -5, 0), Vector(0, 0, 1), 1.6),
    Part.Circle(Vector(26.85, 5, 0), Vector(0, 0, 1), 1.6),
    Part.Circle(Vector(31.85, 0, 0), Vector(0, 0, 1), 1.6),
], False)
sketch10.addConstraint([
    Sketcher.Constraint("Coincident", 0, 2, 1, 1),
    Sketcher.Constraint("Coincident", 1, 2, 2, 1),
    Sketcher.Constraint("Coincident", 2, 2, 3, 1),
    Sketcher.Constraint("Coincident", 3, 2, 0, 1),
    Sketcher.Constraint("Horizontal", 0),
    Sketcher.Constraint("Vertical", 1),
    Sketcher.Constraint("Horizontal", 2),
    Sketcher.Constraint("Vertical", 3),
    Sketcher.Constraint("Equal", 4, 5),
    Sketcher.Constraint("Equal", 5, 6),
    Sketcher.Constraint("Equal", 6, 7),
    Sketcher.Constraint("Symmetric", 5, 3, 6, 3, -1),
    Sketcher.Constraint("PointOnObject", 4, 3, -1),
    Sketcher.Constraint("PointOnObject", 7, 3, -1),
    Sketcher.Constraint("Equal", 2, 1),
    Sketcher.Constraint("Diameter", 4, 3.2),
    Sketcher.Constraint("DistanceX", 0, 2, 0, 1, 15.0),
    Sketcher.Constraint("DistanceY", 5, 3, -1, 1, 5.0),
    Sketcher.Constraint("DistanceX", 4, 3, 5, 3, 5.0),
    Sketcher.Constraint("DistanceX", 5, 3, 7, 3, 5.0),
    Sketcher.Constraint("DistanceY", 0, 2, -1, 1, 7.5),
    Sketcher.Constraint("DistanceX", 0, 2, 4, 3, 2.5),
    Sketcher.Constraint("DistanceX", -1, 1, 4, 3, 21.85),
])
sketch10.setExpression("Constraints[15]", "Params.sketch10_diameter")
sketch10.setExpression("Constraints[16]", "Params.sketch10_width")
pad4 = body.newObject("PartDesign::Pad", "Pad003")
pad4.Profile = sketch10
pad4.setExpression("Length", "Params.pad4_length")
pad4.Reversed = True
doc.recompute()

mirrored = body.newObject("PartDesign::Mirrored", "Mirrored")
mirrored.Originals = [pocket6]
mirrored.MirrorPlane = (doc.getObject("YZ_Plane"), [""])
body.Tip = mirrored
doc.recompute()

mirrored2 = body.newObject("PartDesign::Mirrored", "Mirrored001")
mirrored2.Originals = [pad4]
mirrored2.MirrorPlane = (doc.getObject("YZ_Plane"), [""])
body.Tip = mirrored2

sketch11 = body.newObject("Sketcher::SketchObject", "Sketch010")
sketch11.AttachmentSupport = (doc.getObject("XY_Plane"), [""])
sketch11.MapMode = "FlatFace"
sketch11.AttachmentOffset = App.Placement(Vector(0, 0, 25), App.Rotation())
sketch11.addGeometry([
    Part.LineSegment(Vector(-44.75, 38, 0), Vector(-44.75, 34.35, 0)),
    Part.LineSegment(Vector(-44.75, 34.35, 0), Vector(44.75, 34.35, 0)),
    Part.LineSegment(Vector(44.75, 34.35, 0), Vector(44.75, 38, 0)),
    Part.LineSegment(Vector(44.75, 38, 0), Vector(-44.75, 38, 0)),
], False)
sketch11.addConstraint([
    Sketcher.Constraint("Coincident", 0, 2, 1, 1),
    Sketcher.Constraint("Coincident", 1, 2, 2, 1),
    Sketcher.Constraint("Coincident", 2, 2, 3, 1),
    Sketcher.Constraint("Coincident", 3, 2, 0, 1),
    Sketcher.Constraint("Vertical", 0),
    Sketcher.Constraint("Horizontal", 1),
    Sketcher.Constraint("Vertical", 2),
    Sketcher.Constraint("Horizontal", 3),
    Sketcher.Constraint("DistanceX", 1, 1, 1, 2, 89.5),
    Sketcher.Constraint("DistanceY", -1, 1, 2, 2, 38.0),
    Sketcher.Constraint("DistanceY", 0, 2, 0, 1, 3.65),
    Sketcher.Constraint("DistanceX", 0, 2, -1, 1, 44.75),
])
sketch11.setExpression("Constraints[8]", "Params.sketch11_width")
sketch11.setExpression("Constraints[10]", "Params.sketch11_height")
pocket7 = body.newObject("PartDesign::Pocket", "Pocket006")
pocket7.Profile = sketch11
pocket7.Type = "ThroughAll"

sketch12 = body.newObject("Sketcher::SketchObject", "Sketch011")
sketch12.AttachmentSupport = (doc.getObject("XZ_Plane"), [""])
sketch12.MapMode = "FlatFace"
sketch12.AttachmentOffset = App.Placement(Vector(0, 0, -5), App.Rotation())
sketch12.addGeometry([
    Part.LineSegment(Vector(-98, -85, 0), Vector(-98, 25, 0)),
    Part.LineSegment(Vector(-98, 25, 0), Vector(-85, 25, 0)),
    Part.LineSegment(Vector(-85, 25, 0), Vector(-85, -85, 0)),
    Part.LineSegment(Vector(-85, -85, 0), Vector(-98, -85, 0)),
    Part.LineSegment(Vector(85, -85, 0), Vector(85, 25, 0)),
    Part.LineSegment(Vector(85, 25, 0), Vector(98, 25, 0)),
    Part.LineSegment(Vector(98, 25, 0), Vector(98, -85, 0)),
    Part.LineSegment(Vector(98, -85, 0), Vector(85, -85, 0)),
], False)
sketch12.addConstraint([
    Sketcher.Constraint("Coincident", 0, 2, 1, 1),
    Sketcher.Constraint("Coincident", 1, 2, 2, 1),
    Sketcher.Constraint("Coincident", 2, 2, 3, 1),
    Sketcher.Constraint("Coincident", 3, 2, 0, 1),
    Sketcher.Constraint("Coincident", 4, 2, 5, 1),
    Sketcher.Constraint("Coincident", 5, 2, 6, 1),
    Sketcher.Constraint("Coincident", 6, 2, 7, 1),
    Sketcher.Constraint("Coincident", 7, 2, 4, 1),
    Sketcher.Constraint("Vertical", 0),
    Sketcher.Constraint("Horizontal", 1),
    Sketcher.Constraint("Vertical", 2),
    Sketcher.Constraint("Horizontal", 3),
    Sketcher.Constraint("Vertical", 4),
    Sketcher.Constraint("Horizontal", 5),
    Sketcher.Constraint("Vertical", 6),
    Sketcher.Constraint("Horizontal", 7),
    Sketcher.Constraint("Symmetric", 1, 2, 4, 2, -2),
    Sketcher.Constraint("Symmetric", 3, 2, 6, 2, -2),
    Sketcher.Constraint("DistanceX", 1, 1, 1, 2, 13.0),
    Sketcher.Constraint("DistanceY", 0, 1, 0, 2, 110.0),
    Sketcher.Constraint("DistanceX", 0, 2, -1, 1, 98.0),
    Sketcher.Constraint("DistanceY", -1, 1, 0, 2, 25.0),
])
sketch12.setExpression("Constraints[18]", "Params.sketch12_width")
sketch12.setExpression("Constraints[19]", "Params.sketch12_height")
pocket8 = body.newObject("PartDesign::Pocket", "Pocket007")
pocket8.Profile = sketch12
pocket8.Type = "ThroughAll"
pocket8.Reversed = True
doc.recompute()

fillet = body.newObject("PartDesign::Fillet", "Fillet")
fillet.Base = (pocket8, edges_at(pocket8, [(-44.75, 19.35, 0), (44.75, 19.35, 0)]))
fillet.setExpression("Radius", "Params.fillet_radius")

sketch13 = body.newObject("Sketcher::SketchObject", "Sketch012")
sketch13.AttachmentSupport = (doc.getObject("XZ_Plane"), [""])
sketch13.MapMode = "FlatFace"
sketch13.AttachmentOffset = App.Placement(Vector(0, 0, -5), App.Rotation())
sketch13.addGeometry([
    Part.Circle(Vector(55, -34.5, 0), Vector(0, 0, 1), 1.55),
    Part.Circle(Vector(25, -34.5, 0), Vector(0, 0, 1), 1.55),
    Part.Circle(Vector(25, -44.5, 0), Vector(0, 0, 1), 1.55),
    Part.Circle(Vector(55, -44.5, 0), Vector(0, 0, 1), 1.55),
], False)
sketch13.addConstraint([
    Sketcher.Constraint("Equal", 0, 1),
    Sketcher.Constraint("Equal", 1, 2),
    Sketcher.Constraint("Equal", 2, 3),
    Sketcher.Constraint("Horizontal", 0, 3, 1, 3),
    Sketcher.Constraint("Horizontal", 2, 3, 3, 3),
    Sketcher.Constraint("Vertical", 1, 3, 2, 3),
    Sketcher.Constraint("Vertical", 0, 3, 3, 3),
    Sketcher.Constraint("Diameter", 0, 3.1),
    Sketcher.Constraint("DistanceX", -1, 1, 0, 3, 55.0),
    Sketcher.Constraint("DistanceX", -1, 1, 1, 3, 25.0),
    Sketcher.Constraint("DistanceY", 2, 3, 1, 3, 10.0),
    Sketcher.Constraint("DistanceY", 0, 3, -1, 1, 34.5),
])
sketch13.setExpression("Constraints[7]", "Params.sketch13_diameter")
pocket9 = body.newObject("PartDesign::Pocket", "Pocket008")
pocket9.Profile = sketch13
pocket9.setExpression("Length", "Params.pocket9_length")
pocket9.Reversed = True
doc.recompute()

mirrored3 = body.newObject("PartDesign::Mirrored", "Mirrored002")
mirrored3.Originals = [pocket9]
mirrored3.MirrorPlane = (doc.getObject("YZ_Plane"), [""])
body.Tip = mirrored3

doc.recompute()
